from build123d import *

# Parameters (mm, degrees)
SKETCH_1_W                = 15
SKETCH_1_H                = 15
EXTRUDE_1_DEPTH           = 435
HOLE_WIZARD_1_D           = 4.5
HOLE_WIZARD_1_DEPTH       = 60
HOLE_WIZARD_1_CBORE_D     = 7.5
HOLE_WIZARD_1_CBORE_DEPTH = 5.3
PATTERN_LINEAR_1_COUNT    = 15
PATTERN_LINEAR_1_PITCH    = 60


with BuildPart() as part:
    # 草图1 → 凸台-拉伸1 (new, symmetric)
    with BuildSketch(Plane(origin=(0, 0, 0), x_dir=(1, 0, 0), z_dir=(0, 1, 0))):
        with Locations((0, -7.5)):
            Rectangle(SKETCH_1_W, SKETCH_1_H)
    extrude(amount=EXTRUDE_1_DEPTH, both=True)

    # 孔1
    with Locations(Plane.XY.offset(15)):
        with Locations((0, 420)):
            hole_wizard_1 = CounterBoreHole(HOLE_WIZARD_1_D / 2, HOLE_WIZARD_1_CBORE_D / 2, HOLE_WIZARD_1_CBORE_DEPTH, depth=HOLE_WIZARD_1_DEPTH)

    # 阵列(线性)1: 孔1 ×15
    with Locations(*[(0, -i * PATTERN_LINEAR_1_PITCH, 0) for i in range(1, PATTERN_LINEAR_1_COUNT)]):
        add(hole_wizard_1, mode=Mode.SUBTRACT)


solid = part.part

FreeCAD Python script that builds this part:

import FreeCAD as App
import Part
import Sketcher

V = App.Vector
Q = App.Units.Quantity


def add_polygon(sketch, points):
    """Adds a closed chain of lines whose ends are joined by coincident constraints."""
    first, n = sketch.GeometryCount, len(points)
    for a, b in zip(points, points[1:] + points[:1]):
        sketch.addGeometry(Part.LineSegment(App.Vector(*a, 0), App.Vector(*b, 0)), False)
    for i in range(n):
        sketch.addConstraint(Sketcher.Constraint("Coincident", first + i, 2, first + (i + 1) % n, 1))

doc = App.newDocument("Part")
body = doc.addObject("PartDesign::Body", "Body")

# Sketch on XZ plane
sketch1 = body.newObject("Sketcher::SketchObject", "Sketch")
sketch1.AttachmentSupport = (doc.getObject("XZ_Plane"), [""])
sketch1.MapMode = "FlatFace"
add_polygon(sketch1, [(-8, 0), (-8, 15), (8, 15), (8, 0)])  # lines 0-3
sketch1.addConstraint([
    Sketcher.Constraint("Vertical", 0),
    Sketcher.Constraint("Horizontal", 1),
    Sketcher.Constraint("Vertical", 2),
    Sketcher.Constraint("Horizontal", 3),
    Sketcher.Constraint("Symmetric", 2, 2, 3, 2, -1, 1),
    Sketcher.Constraint("Equal", 3, 0),
    Sketcher.Constraint("DistanceX", 1, 1, 1, 2, Q("15 mm")),
])
pad1 = body.newObject("PartDesign::Pad", "Pad")
pad1.Profile = sketch1
pad1.Length = 870
pad1.Midplane = True

# Sketch on XY plane
sketch2 = body.newObject("Sketcher::SketchObject", "Sketch001")
sketch2.AttachmentSupport = (doc.getObject("XY_Plane"), [""])
sketch2.MapMode = "FlatFace"
sketch2.AttachmentOffset = App.Placement(V(0, 0, 15), App.Rotation())
sketch2.addGeometry(Part.Circle(V(0, 420, 0), V(0, 0, 1), 2.2), False)
sketch2.addConstraint([
    Sketcher.Constraint("PointOnObject", 0, 3, -2),
    Sketcher.Constraint("Diameter", 0, Q("4.5 mm")),
    Sketcher.Constraint("DistanceY", -1, 1, 0, 3, Q("420 mm")),
])
doc.recompute()
hole = body.newObject("PartDesign::Hole", "Hole")
hole.Profile = sketch2
hole.ThreadType = "None"
hole.Diameter = 4.5
hole.DepthType = "Dimension"
hole.Depth = 60
hole.DrillPoint = "Flat"
hole.HoleCutType = "Counterbore"
hole.HoleCutDiameter = 7.5
hole.HoleCutDepth = 5.3
doc.recompute()

linearpattern = body.newObject("PartDesign::LinearPattern", "LinearPattern")
linearpattern.Originals = [hole]
linearpattern.Direction = (doc.getObject("Y_Axis"), [""])
linearpattern.Mode = "offset"
linearpattern.Offset = 60
linearpattern.Occurrences = 15
linearpattern.Reversed = True
body.Tip = linearpattern

doc.recompute()
